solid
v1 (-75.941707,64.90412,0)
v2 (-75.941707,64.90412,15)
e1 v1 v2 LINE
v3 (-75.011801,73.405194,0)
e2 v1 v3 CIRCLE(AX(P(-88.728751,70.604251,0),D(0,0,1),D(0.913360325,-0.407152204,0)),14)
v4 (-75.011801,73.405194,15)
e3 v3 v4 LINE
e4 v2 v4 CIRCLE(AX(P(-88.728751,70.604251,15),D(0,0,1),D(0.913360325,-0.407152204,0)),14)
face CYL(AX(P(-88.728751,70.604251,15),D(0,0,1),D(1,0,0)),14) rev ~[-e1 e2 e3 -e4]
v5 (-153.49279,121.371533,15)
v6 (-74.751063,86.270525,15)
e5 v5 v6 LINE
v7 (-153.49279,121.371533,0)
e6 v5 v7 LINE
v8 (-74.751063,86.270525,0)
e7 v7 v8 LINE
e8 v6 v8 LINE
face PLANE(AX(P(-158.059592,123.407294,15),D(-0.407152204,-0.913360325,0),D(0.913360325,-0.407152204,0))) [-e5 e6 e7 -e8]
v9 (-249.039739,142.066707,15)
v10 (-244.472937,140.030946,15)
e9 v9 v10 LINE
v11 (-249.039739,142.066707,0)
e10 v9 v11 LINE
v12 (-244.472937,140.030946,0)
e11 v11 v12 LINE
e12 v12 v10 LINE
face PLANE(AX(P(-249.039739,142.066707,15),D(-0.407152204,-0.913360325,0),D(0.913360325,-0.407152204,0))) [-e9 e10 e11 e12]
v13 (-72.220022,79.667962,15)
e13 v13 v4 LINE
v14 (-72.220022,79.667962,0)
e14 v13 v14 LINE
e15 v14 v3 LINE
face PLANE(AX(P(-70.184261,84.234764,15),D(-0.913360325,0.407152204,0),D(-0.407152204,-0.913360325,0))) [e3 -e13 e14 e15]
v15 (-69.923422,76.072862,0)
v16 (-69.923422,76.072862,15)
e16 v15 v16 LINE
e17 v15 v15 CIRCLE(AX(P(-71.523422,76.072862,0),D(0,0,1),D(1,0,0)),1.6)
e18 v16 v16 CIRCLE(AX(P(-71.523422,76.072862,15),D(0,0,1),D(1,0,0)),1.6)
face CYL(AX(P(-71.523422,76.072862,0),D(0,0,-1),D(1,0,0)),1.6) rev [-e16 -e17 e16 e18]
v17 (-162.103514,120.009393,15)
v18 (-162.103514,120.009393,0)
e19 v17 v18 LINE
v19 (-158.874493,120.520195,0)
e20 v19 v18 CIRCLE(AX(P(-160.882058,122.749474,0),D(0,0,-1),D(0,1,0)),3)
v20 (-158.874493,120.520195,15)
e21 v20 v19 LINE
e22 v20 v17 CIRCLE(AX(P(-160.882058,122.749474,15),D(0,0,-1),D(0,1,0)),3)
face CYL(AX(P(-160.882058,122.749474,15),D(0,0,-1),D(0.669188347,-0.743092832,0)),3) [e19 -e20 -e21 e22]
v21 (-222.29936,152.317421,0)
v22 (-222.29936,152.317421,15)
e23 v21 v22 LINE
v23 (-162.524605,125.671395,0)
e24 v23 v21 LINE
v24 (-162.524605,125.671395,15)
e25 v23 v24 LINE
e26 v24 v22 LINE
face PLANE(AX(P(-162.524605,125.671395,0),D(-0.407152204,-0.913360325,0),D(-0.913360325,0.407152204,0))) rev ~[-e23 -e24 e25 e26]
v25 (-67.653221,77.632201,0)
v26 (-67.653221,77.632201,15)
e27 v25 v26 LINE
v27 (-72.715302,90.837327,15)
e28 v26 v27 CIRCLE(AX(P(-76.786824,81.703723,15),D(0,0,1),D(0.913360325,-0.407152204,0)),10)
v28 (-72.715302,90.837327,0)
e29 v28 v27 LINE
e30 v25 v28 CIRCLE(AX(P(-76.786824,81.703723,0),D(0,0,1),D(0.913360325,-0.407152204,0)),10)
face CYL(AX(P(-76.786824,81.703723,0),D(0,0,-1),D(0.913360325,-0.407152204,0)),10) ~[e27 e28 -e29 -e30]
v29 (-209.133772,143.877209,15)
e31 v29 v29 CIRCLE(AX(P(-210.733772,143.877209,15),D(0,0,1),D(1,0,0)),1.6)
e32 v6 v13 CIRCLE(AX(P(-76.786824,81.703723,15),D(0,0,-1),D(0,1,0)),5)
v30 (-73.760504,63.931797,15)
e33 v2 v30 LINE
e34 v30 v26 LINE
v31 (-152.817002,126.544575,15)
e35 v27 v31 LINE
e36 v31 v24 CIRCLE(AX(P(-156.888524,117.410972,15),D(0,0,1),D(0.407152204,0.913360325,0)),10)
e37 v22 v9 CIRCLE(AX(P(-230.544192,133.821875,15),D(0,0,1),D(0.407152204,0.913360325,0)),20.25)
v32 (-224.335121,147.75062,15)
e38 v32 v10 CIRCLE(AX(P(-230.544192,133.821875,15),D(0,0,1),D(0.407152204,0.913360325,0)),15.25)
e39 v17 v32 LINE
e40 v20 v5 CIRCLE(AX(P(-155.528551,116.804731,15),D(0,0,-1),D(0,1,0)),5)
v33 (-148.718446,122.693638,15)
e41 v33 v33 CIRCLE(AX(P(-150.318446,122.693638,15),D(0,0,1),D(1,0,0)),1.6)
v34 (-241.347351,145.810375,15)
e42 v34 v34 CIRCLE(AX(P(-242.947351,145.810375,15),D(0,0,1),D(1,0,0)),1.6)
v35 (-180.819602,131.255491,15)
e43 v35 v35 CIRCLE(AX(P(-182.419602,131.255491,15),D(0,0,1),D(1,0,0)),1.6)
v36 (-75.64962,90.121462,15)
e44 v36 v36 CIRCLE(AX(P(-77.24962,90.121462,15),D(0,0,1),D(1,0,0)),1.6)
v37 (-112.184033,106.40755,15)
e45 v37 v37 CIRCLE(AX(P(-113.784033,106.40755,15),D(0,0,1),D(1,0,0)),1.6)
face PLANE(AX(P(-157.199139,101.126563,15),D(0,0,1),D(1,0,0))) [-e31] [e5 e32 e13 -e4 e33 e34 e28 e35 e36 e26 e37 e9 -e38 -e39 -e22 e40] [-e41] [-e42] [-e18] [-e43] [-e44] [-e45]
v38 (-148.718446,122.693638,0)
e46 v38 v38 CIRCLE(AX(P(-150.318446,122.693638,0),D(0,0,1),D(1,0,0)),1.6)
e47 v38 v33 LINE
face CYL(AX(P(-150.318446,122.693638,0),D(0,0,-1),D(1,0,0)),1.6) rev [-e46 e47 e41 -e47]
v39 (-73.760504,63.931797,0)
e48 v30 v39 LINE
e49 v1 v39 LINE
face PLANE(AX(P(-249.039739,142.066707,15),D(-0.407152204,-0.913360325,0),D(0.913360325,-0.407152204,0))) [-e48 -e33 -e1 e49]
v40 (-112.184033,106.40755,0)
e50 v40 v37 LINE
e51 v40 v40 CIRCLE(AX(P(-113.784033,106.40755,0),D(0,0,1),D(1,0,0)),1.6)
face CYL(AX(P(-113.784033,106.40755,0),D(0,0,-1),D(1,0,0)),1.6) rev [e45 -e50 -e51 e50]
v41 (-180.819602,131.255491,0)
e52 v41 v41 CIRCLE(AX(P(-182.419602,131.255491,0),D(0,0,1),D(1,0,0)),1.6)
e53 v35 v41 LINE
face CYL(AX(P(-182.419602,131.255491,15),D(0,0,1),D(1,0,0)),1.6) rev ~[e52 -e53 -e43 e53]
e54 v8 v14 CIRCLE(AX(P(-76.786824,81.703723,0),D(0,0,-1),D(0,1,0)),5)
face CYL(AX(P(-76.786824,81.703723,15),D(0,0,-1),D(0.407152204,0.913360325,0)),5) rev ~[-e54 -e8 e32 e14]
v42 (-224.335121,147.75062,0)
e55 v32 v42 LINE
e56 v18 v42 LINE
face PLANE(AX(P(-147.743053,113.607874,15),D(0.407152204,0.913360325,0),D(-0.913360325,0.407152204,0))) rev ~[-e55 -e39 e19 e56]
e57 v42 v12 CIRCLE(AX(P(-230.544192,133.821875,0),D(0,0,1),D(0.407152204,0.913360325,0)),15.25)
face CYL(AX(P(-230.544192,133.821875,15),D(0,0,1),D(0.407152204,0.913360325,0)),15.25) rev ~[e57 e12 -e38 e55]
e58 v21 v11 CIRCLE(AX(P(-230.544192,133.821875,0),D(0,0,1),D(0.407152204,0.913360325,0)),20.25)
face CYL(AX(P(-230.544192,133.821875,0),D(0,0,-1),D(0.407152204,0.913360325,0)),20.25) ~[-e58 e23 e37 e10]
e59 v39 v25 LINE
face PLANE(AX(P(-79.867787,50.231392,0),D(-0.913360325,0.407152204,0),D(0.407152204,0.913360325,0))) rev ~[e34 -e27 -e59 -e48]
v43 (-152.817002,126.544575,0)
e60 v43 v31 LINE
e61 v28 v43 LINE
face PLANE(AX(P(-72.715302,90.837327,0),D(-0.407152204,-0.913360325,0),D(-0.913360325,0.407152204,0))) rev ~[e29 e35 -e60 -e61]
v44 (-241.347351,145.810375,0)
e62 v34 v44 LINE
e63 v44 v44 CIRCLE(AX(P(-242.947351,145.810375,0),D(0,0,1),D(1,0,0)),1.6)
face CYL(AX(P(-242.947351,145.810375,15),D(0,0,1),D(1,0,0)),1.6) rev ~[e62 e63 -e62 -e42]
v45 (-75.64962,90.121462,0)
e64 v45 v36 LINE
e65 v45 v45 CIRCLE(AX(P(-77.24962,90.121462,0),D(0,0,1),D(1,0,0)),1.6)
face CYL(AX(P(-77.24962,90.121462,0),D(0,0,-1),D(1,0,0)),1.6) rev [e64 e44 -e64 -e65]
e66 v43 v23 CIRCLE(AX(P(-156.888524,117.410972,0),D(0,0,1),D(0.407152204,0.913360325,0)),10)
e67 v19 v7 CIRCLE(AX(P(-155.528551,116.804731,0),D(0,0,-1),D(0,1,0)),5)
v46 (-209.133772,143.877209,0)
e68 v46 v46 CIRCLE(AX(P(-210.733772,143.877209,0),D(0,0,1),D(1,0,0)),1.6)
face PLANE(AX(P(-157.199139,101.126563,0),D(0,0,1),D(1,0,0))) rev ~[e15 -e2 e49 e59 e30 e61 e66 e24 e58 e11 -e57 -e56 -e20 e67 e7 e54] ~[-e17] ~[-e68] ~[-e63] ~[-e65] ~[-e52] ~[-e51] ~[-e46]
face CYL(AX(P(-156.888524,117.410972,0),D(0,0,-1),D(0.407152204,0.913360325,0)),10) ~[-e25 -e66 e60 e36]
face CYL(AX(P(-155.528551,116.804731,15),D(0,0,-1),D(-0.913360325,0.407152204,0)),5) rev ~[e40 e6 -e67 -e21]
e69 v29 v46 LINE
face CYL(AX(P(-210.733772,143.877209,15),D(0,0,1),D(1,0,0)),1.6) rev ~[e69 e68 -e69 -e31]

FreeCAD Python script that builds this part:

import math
import FreeCAD as App
import Part
import Sketcher
from FreeCAD import Vector
Q = App.Units.Quantity


def edges_at(feature, points):
    """Names of the edges that pass closest to the given points."""
    edges = feature.Shape.Edges
    near = lambda p: min(range(len(edges)), key=lambda i: edges[i].distToShape(Part.Vertex(*p))[0])
    return sorted({f"Edge{near(p) + 1}" for p in points})


def add_polygon(sketch, points):
    """Adds a closed chain of lines whose ends are joined by coincident constraints."""
    first, n = sketch.GeometryCount, len(points)
    for a, b in zip(points, points[1:] + points[:1]):
        sketch.addGeometry(Part.LineSegment(App.Vector(*a, 0), App.Vector(*b, 0)), False)
    for i in range(n):
        sketch.addConstraint(Sketcher.Constraint("Coincident", first + i, 2, first + (i + 1) % n, 1))

doc = App.newDocument("Part")
body = doc.addObject("PartDesign::Body", "Body")

sketch1 = doc.addObject("Sketcher::SketchObject", "Sketch")
body.addObject(sketch1)
sketch1.AttachmentSupport = (doc.XY_Plane, [""])
sketch1.MapMode = "FlatFace"
sketch1.addGeometry([
    Part.LineSegment(Vector(-72.7, 90.8, 0), Vector(-152.8, 126.5, 0)),
    Part.ArcOfCircle(Part.Circle(Vector(-156.9, 117.4, 0), Vector(0, 0, 1), 10), math.radians(66), math.radians(124)),
    Part.LineSegment(Vector(-162.5, 125.7, 0), Vector(-222.3, 152.3, 0)),
    Part.ArcOfCircle(Part.Circle(Vector(-230.5, 133.8, 0), Vector(0, 0, 1), 20.2), math.radians(66), math.radians(246)),
    Part.LineSegment(Vector(-238.8, 115.3, 0), Vector(-179, 88.7, 0)),
    Part.ArcOfCircle(Part.Circle(Vector(-169.1, 90, 0), Vector(0, 0, 1), 10), math.radians(-172), math.radians(-114)),
    Part.LineSegment(Vector(-173.2, 80.9, 0), Vector(-93.1, 45.2, 0)),
    Part.ArcOfCircle(Part.Circle(Vector(-89, 54.3, 0), Vector(0, 0, 1), 10), math.radians(-114), math.radians(-24)),
    Part.LineSegment(Vector(-79.9, 50.2, 0), Vector(-67.7, 77.6, 0)),
    Part.ArcOfCircle(Part.Circle(Vector(-76.8, 81.7, 0), Vector(0, 0, 1), 10), math.radians(-24), math.radians(66)),
    Part.Circle(Vector(-168.6, 81.6, 0), Vector(0, 0, 1), 1.7),
    Part.Circle(Vector(-132.1, 65.3, 0), Vector(0, 0, 1), 1.7),
    Part.Circle(Vector(-95.6, 49, 0), Vector(0, 0, 1), 1.7),
    Part.Circle(Vector(-81.3, 54.2, 0), Vector(0, 0, 1), 1.7),
    Part.Circle(Vector(-71.5, 76.1, 0), Vector(0, 0, 1), 1.6),
    Part.Circle(Vector(-77.2, 90.1, 0), Vector(0, 0, 1), 1.6),
    Part.Circle(Vector(-168.9, 106.4, 0), Vector(0, 0, 1), 1.7),
    Part.Circle(Vector(-230.5, 133.8, 0), Vector(0, 0, 1), 14.2),
    Part.Circle(Vector(-113.8, 106.4, 0), Vector(0, 0, 1), 1.6),
    Part.Circle(Vector(-150.3, 122.7, 0), Vector(0, 0, 1), 1.6),
], False)
sketch1.addConstraint([
    Sketcher.Constraint("Tangent", 0, 2, 1, 1),
    Sketcher.Constraint("Coincident", 1, 2, 2, 1),
    Sketcher.Constraint("Tangent", 2, 2, 3, 1),
    Sketcher.Constraint("Tangent", 3, 2, 4, 1),
    Sketcher.Constraint("Coincident", 4, 2, 5, 1),
    Sketcher.Constraint("Tangent", 5, 2, 6, 1),
    Sketcher.Constraint("Tangent", 6, 2, 7, 1),
    Sketcher.Constraint("Tangent", 7, 2, 8, 1),
    Sketcher.Constraint("Tangent", 8, 2, 9, 1),
    Sketcher.Constraint("Tangent", 9, 2, 0, 1),
    Sketcher.Constraint("Coincident", 17, 3, 3, 3),
    Sketcher.Constraint("Equal", 1, 5),
    Sketcher.Constraint("Equal", 5, 7),
    Sketcher.Constraint("Equal", 7, 9),
    Sketcher.Constraint("Equal", 10, 11),
    Sketcher.Constraint("Equal", 11, 12),
    Sketcher.Constraint("Equal", 12, 13),
    Sketcher.Constraint("Equal", 14, 15),
    Sketcher.Constraint("Equal", 13, 16),
    Sketcher.Constraint("Equal", 15, 18),
    Sketcher.Constraint("Equal", 18, 19),
    Sketcher.Constraint("Parallel", 0, 2),
    Sketcher.Constraint("Parallel", 2, 4),
    Sketcher.Constraint("Parallel", 4, 6),
    Sketcher.Constraint("Perpendicular", 6, 8),
    Sketcher.Constraint("Equal", 2, 4),
    Sketcher.Constraint("Equal", 0, 6),
    Sketcher.Constraint("Radius", 1, Q("10 mm")),
    Sketcher.Constraint("Diameter", 10, Q("3.4 mm")),
    Sketcher.Constraint("Diameter", 14, Q("3.2 mm")),
    Sketcher.Constraint("Diameter", 17, Q("28.5 mm")),
    Sketcher.Constraint("Radius", 3, Q("20.25 mm")),
    Sketcher.Constraint("Distance", 8, Q("30 mm")),
    Sketcher.Constraint("Distance", 0, Q("87.7 mm")),
    Sketcher.Constraint("DistanceY", -1, 1, 4, 2, Q("88.680302 mm")),
    Sketcher.Constraint("DistanceY", -1, 1, 8, 2, Q("77.632201 mm")),
    Sketcher.Constraint("DistanceX", 9, 2, -1, 1, Q("72.715302 mm")),
    Sketcher.Constraint("DistanceX", 3, 3, 5, 3, Q("61.441102 mm")),
    Sketcher.Constraint("DistanceY", 10, 3, 9, 3, Q("0.1113 mm")),
    Sketcher.Constraint("DistanceY", 13, 3, 7, 3, Q("0.1507 mm")),
    Sketcher.Constraint("DistanceX", 9, 3, 14, 3, Q("5.263402 mm")),
    Sketcher.Constraint("DistanceY", 14, 3, 15, 3, Q("14.0486 mm")),
    Sketcher.Constraint("DistanceX", 15, 3, 8, 2, Q("9.596399 mm")),
    Sketcher.Constraint("DistanceX", 11, 3, -1, 1, Q("132.105882 mm")),
    Sketcher.Constraint("DistanceX", 12, 3, -1, 1, Q("95.571469 mm")),
    Sketcher.Constraint("DistanceY", -1, 1, 14, 3, Q("76.072862 mm")),
    Sketcher.Constraint("DistanceX", 16, 3, -1, 1, Q("168.932649 mm")),
    Sketcher.Constraint("DistanceY", -1, 1, 18, 3, Q("106.40755 mm")),
    Sketcher.Constraint("DistanceY", -1, 1, 19, 3, Q("122.693638 mm")),
    Sketcher.Constraint("DistanceX", 10, 3, 1, 3, Q("11.75177 mm")),
    Sketcher.Constraint("DistanceY", 11, 3, 10, 3, Q("16.286088 mm")),
    Sketcher.Constraint("DistanceY", 12, 3, 11, 3, Q("16.286088 mm")),
    Sketcher.Constraint("DistanceX", 13, 3, 9, 3, Q("4.508251 mm")),
    Sketcher.Constraint("DistanceY", 11, 3, 16, 3, Q("41.050721 mm")),
    Sketcher.Constraint("DistanceX", 18, 3, 9, 3, Q("36.997209 mm")),
    Sketcher.Constraint("DistanceX", 1, 3, 19, 3, Q("6.570079 mm")),
])
pad1 = doc.addObject("PartDesign::Pad", "Pad")
body.addObject(pad1)
pad1.Profile = sketch1
pad1.Length = 15

sketch2 = doc.addObject("Sketcher::SketchObject", "Sketch001")
body.addObject(sketch2)
sketch2.AttachmentSupport = (doc.XY_Plane, [""])
sketch2.MapMode = "FlatFace"
sketch2.AttachmentOffset = App.Placement(Vector(0, 0, 15), App.Rotation())
sketch2.addGeometry([
    Part.Circle(Vector(-196.5, 99.7, 0), Vector(0, 0, 1), 1.2),
    Part.Circle(Vector(-224.8, 112.4, 0), Vector(0, 0, 1), 1.2),
    Part.Circle(Vector(-210.7, 143.9, 0), Vector(0, 0, 1), 1.6),
    Part.Circle(Vector(-182.4, 131.3, 0), Vector(0, 0, 1), 1.6),
    Part.Circle(Vector(-242.9, 145.8, 0), Vector(0, 0, 1), 1.6),
    Part.Circle(Vector(-247.8, 135, 0), Vector(0, 0, 1), 1.2),
], False)
sketch2.addConstraint([
    Sketcher.Constraint("Equal", 0, 1),
    Sketcher.Constraint("Equal", 2, 3),
    Sketcher.Constraint("Equal", 3, 4),
    Sketcher.Constraint("Equal", 1, 5),
    Sketcher.Constraint("Diameter", 0, Q("2.5 mm")),
    Sketcher.Constraint("Diameter", 2, Q("3.2 mm")),
    Sketcher.Constraint("DistanceX", 5, 3, 1, 3, Q("22.9711 mm")),
    Sketcher.Constraint("DistanceY", -1, 1, 0, 3, Q("99.74456 mm")),
    Sketcher.Constraint("DistanceY", -1, 1, 1, 3, Q("112.366278 mm")),
    Sketcher.Constraint("DistanceY", -1, 1, 2, 3, Q("143.877209 mm")),
    Sketcher.Constraint("DistanceY", -1, 1, 3, 3, Q("131.255491 mm")),
    Sketcher.Constraint("DistanceX", 4, 3, -1, 1, Q("242.947351 mm")),
    Sketcher.Constraint("DistanceX", 1, 3, 0, 3, Q("28.31417 mm")),
    Sketcher.Constraint("DistanceX", 1, 3, 2, 3, Q("14.046751 mm")),
    Sketcher.Constraint("DistanceX", 2, 3, 3, 3, Q("28.31417 mm")),
    Sketcher.Constraint("DistanceX", 4, 3, 2, 3, Q("32.213579 mm")),
    Sketcher.Constraint("DistanceY", 3, 3, 5, 3, Q("3.777511 mm")),
    Sketcher.Constraint("DistanceY", -1, 1, 4, 3, Q("145.810375 mm")),
])
pocket1 = doc.addObject("PartDesign::Pocket", "Pocket")
body.addObject(pocket1)
pocket1.Profile = sketch2
pocket1.Type = "ThroughAll"

sketch3 = doc.addObject("Sketcher::SketchObject", "Sketch002")
body.addObject(sketch3)
sketch3.AttachmentSupport = (doc.XY_Plane, [""])
sketch3.MapMode = "FlatFace"
sketch3.AttachmentOffset = App.Placement(Vector(0, 0, 15), App.Rotation())
add_polygon(sketch3, [(-70, 84), (-158, 123), (-174, 87), (-86, 48)])
sketch3.addConstraint([
    Sketcher.Constraint("Perpendicular", 0, 1),
    Sketcher.Constraint("Perpendicular", 1, 2),
    Sketcher.Constraint("Perpendicular", 2, 3),
    Sketcher.Constraint("Distance", 1, Q("40 mm")),
    Sketcher.Constraint("DistanceX", 0, 2, -1, 1, Q("158.059592 mm")),
    Sketcher.Constraint("DistanceX", 1, 2, -1, 1, Q("174.34568 mm")),
    Sketcher.Constraint("DistanceY", -1, 1, 1, 2, Q("86.872881 mm")),
    Sketcher.Constraint("DistanceX", 2, 2, -1, 1, Q("86.470349 mm")),
])
pocket2 = doc.addObject("PartDesign::Pocket", "Pocket001")
body.addObject(pocket2)
pocket2.Profile = sketch3
pocket2.Type = "ThroughAll"
doc.recompute()

fillet = doc.addObject("PartDesign::Fillet", "Fillet")
body.addObject(fillet)
fillet.Base = (pocket2, edges_at(pocket2, [(-174.346, 86.873, 7.5), (-158.06, 123.407, 7.5)]))
fillet.Radius = 5
doc.recompute()

fillet2 = doc.addObject("PartDesign::Fillet", "Fillet001")
body.addObject(fillet2)
fillet2.Base = (fillet, edges_at(fillet, [(-70.184, 84.235, 7.5), (-86.47, 47.7, 7.5)]))
fillet2.Radius = 5

sketch4 = doc.addObject("Sketcher::SketchObject", "Sketch003")
body.addObject(sketch4)
sketch4.AttachmentSupport = (doc.XY_Plane, [""])
sketch4.MapMode = "FlatFace"
sketch4.AttachmentOffset = App.Placement(Vector(0, 0, 15), App.Rotation())
add_polygon(sketch4, [(-74, 64), (-249, 142), (-268, 99), (-93, 21)])
sketch4.addConstraint([
    Sketcher.Constraint("Perpendicular", 0, 1),
    Sketcher.Constraint("Perpendicular", 1, 2),
    Sketcher.Constraint("Perpendicular", 2, 3),
    Sketcher.Constraint("Distance", 0, Q("191.9059 mm")),
    Sketcher.Constraint("DistanceX", 0, 2, 2, 2, Q("156.1684 mm")),
    Sketcher.Constraint("DistanceX", 0, 2, -1, 1, Q("249.039739 mm")),
    Sketcher.Constraint("DistanceY", -1, 1, 1, 2, Q("99.195569 mm")),
    Sketcher.Constraint("DistanceY", -1, 1, 2, 2, Q("21.060658 mm")),
])
pocket3 = doc.addObject("PartDesign::Pocket", "Pocket002")
body.addObject(pocket3)
pocket3.Profile = sketch4
pocket3.Type = "ThroughAll"

sketch5 = doc.addObject("Sketcher::SketchObject", "Sketch004")
body.addObject(sketch5)
sketch5.AttachmentSupport = (doc.XY_Plane, [""])
sketch5.MapMode = "FlatFace"
sketch5.AttachmentOffset = App.Placement(Vector(0, 0, 15), App.Rotation())
sketch5.addGeometry([
    Part.LineSegment(Vector(-148, 114, 0), Vector(-224, 148, 0)),
    Part.ArcOfCircle(Part.Circle(Vector(-231, 134, 0), Vector(0, 0, 1), 15), math.radians(66), math.radians(246)),
    Part.LineSegment(Vector(-237, 120, 0), Vector(-160, 85, 0)),
    Part.LineSegment(Vector(-160, 85, 0), Vector(-148, 114, 0)),
], False)
sketch5.addConstraint([
    Sketcher.Constraint("Tangent", 0, 2, 1, 1),
    Sketcher.Constraint("Tangent", 1, 2, 2, 1),
    Sketcher.Constraint("Coincident", 2, 2, 3, 1),
    Sketcher.Constraint("Coincident", 3, 2, 0, 1),
    Sketcher.Constraint("Radius", 1, Q("15.25 mm")),
    Sketcher.Constraint("DistanceY", 3, 2, 1, 3, Q("20.214001 mm")),
    Sketcher.Constraint("Distance", 0, Q("83.857451 mm")),
    Sketcher.Constraint("DistanceX", 0, 2, -1, 1, Q("224.335121 mm")),
    Sketcher.Constraint("DistanceY", -1, 1, 0, 2, Q("147.75062 mm")),
    Sketcher.Constraint("DistanceY", -1, 1, 1, 2, Q("119.928051 mm")),
    Sketcher.Constraint("DistanceY", -1, 1, 2, 2, Q("85.309789 mm")),
])
pocket4 = doc.addObject("PartDesign::Pocket", "Pocket003")
body.addObject(pocket4)
pocket4.Profile = sketch5
pocket4.Type = "ThroughAll"
doc.recompute()

fillet3 = doc.addObject("PartDesign::Fillet", "Fillet002")
body.addObject(fillet3)
fillet3.Base = (pocket4, edges_at(pocket4, [(-159.988, 119.066, 7.5)]))
fillet3.Radius = 3

sketch6 = doc.addObject("Sketcher::SketchObject", "Sketch005")
body.addObject(sketch6)
sketch6.AttachmentSupport = (doc.XY_Plane, [""])
sketch6.MapMode = "FlatFace"
sketch6.AttachmentOffset = App.Placement(Vector(0, 0, 15), App.Rotation())
sketch6.addGeometry(Part.Circle(Vector(-89, 71, 0), Vector(0, 0, 1), 14), False)
sketch6.addConstraint([
    Sketcher.Constraint("Diameter", 0, Q("28 mm")),
    Sketcher.Constraint("DistanceX", 0, 3, -1, 1, Q("88.728751 mm")),
    Sketcher.Constraint("DistanceY", -1, 1, 0, 3, Q("70.604251 mm")),
])
pocket5 = doc.addObject("PartDesign::Pocket", "Pocket004")
body.addObject(pocket5)
pocket5.Profile = sketch6
pocket5.Type = "ThroughAll"

doc.recompute()
